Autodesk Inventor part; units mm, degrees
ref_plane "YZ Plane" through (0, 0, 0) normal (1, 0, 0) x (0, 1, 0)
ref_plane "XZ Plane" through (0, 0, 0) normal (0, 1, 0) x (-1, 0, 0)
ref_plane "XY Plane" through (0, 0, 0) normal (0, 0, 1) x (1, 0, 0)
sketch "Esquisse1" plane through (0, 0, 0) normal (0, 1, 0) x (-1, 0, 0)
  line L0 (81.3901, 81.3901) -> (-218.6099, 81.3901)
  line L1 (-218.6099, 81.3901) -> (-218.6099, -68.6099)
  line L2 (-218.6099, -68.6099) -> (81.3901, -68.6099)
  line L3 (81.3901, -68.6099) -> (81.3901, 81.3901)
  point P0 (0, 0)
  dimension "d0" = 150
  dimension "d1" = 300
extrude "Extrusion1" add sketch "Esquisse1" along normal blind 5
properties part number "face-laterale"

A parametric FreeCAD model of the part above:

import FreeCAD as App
import Part
import Sketcher
from FreeCAD import Vector
Q = App.Units.Quantity

doc = App.newDocument("Part")
body = doc.addObject("PartDesign::Body", "Body")

# Sketch on XZ plane
sketch1 = doc.addObject("Sketcher::SketchObject", "Sketch")
body.addObject(sketch1)
sketch1.AttachmentSupport = (doc.XZ_Plane, [""])
sketch1.MapMode = "FlatFace"
sketch1.addGeometry([
    Part.LineSegment(Vector(-81.3901, -68.6099, 0), Vector(-81.3901, 81.3901, 0)),
    Part.LineSegment(Vector(-81.3901, 81.3901, 0), Vector(218.6099, 81.3901, 0)),
    Part.LineSegment(Vector(218.6099, 81.3901, 0), Vector(218.6099, -68.6099, 0)),
    Part.LineSegment(Vector(218.6099, -68.6099, 0), Vector(-81.3901, -68.6099, 0)),
], False)
sketch1.addConstraint([
    Sketcher.Constraint("Coincident", 0, 2, 1, 1),
    Sketcher.Constraint("Coincident", 1, 2, 2, 1),
    Sketcher.Constraint("Coincident", 2, 2, 3, 1),
    Sketcher.Constraint("Coincident", 3, 2, 0, 1),
    Sketcher.Constraint("Vertical", 0),
    Sketcher.Constraint("Horizontal", 1),
    Sketcher.Constraint("Vertical", 2),
    Sketcher.Constraint("Horizontal", 3),
    Sketcher.Constraint("DistanceX", 1, 1, 1, 2, Q("300 mm")),
    Sketcher.Constraint("DistanceY", 0, 1, 0, 2, Q("150 mm")),
    Sketcher.Constraint("DistanceX", 0, 2, -1, 1, Q("81.39 mm")),
    Sketcher.Constraint("DistanceY", -1, 1, 0, 2, Q("81.39 mm")),
])
pad1 = doc.addObject("PartDesign::Pad", "Pad")
body.addObject(pad1)
pad1.Profile = sketch1
pad1.Length = 5
pad1.Reversed = True

doc.recompute()
